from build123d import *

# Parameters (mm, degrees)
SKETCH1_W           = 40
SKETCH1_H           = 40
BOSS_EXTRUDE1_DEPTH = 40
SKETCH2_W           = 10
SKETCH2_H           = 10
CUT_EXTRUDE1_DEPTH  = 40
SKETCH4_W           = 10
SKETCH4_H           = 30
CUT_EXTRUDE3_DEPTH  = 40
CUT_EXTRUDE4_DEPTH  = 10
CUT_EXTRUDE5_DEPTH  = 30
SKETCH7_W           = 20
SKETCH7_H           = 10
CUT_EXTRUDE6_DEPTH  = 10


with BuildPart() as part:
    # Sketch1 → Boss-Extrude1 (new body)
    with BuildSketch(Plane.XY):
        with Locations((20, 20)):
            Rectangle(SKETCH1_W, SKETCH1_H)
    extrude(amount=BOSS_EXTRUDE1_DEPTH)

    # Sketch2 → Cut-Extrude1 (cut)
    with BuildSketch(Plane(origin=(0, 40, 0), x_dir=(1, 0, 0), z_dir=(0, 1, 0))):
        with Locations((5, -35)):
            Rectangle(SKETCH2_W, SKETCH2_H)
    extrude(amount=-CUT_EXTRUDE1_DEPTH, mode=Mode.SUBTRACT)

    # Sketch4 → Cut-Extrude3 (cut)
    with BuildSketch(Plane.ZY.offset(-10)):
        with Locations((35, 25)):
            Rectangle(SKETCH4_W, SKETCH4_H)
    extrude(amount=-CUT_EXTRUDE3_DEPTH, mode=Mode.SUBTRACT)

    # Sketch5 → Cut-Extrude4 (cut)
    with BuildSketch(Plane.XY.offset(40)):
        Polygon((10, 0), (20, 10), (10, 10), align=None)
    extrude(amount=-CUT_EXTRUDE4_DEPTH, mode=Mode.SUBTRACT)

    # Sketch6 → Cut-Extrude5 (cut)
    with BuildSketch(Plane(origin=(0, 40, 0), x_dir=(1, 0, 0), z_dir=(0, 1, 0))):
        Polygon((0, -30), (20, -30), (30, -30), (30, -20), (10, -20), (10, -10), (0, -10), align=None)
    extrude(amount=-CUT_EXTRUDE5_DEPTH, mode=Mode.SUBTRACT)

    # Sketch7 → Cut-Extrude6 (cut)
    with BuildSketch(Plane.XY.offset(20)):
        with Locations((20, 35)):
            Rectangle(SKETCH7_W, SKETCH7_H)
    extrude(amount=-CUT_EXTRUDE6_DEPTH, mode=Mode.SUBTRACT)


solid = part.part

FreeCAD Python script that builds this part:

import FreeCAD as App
import Part
import Sketcher
from FreeCAD import Vector
Q = App.Units.Quantity


def add_polygon(sketch, points):
    """Adds a closed chain of lines whose ends are joined by coincident constraints."""
    first, n = sketch.GeometryCount, len(points)
    for a, b in zip(points, points[1:] + points[:1]):
        sketch.addGeometry(Part.LineSegment(App.Vector(*a, 0), App.Vector(*b, 0)), False)
    for i in range(n):
        sketch.addConstraint(Sketcher.Constraint("Coincident", first + i, 2, first + (i + 1) % n, 1))

doc = App.newDocument("Part")
body = doc.addObject("PartDesign::Body", "Body")

sketch1 = body.newObject("Sketcher::SketchObject", "Sketch")
sketch1.AttachmentSupport = (doc.getObject("XY_Plane"), [""])
sketch1.MapMode = "FlatFace"
add_polygon(sketch1, [(0, 40), (0, 0), (40, 0), (40, 40)])
sketch1.addConstraint(Sketcher.Constraint("Vertical", 0))
sketch1.addConstraint(Sketcher.Constraint("Horizontal", 1))
sketch1.addConstraint(Sketcher.Constraint("Vertical", 2))
sketch1.addConstraint(Sketcher.Constraint("Horizontal", 3))
sketch1.addConstraint(Sketcher.Constraint("Coincident", 0, 2, -1, 1))
sketch1.addConstraint(Sketcher.Constraint("Equal", 3, 0))
sketch1.addConstraint(Sketcher.Constraint("DistanceX", 1, 1, 1, 2, Q("40 mm")))
pad1 = body.newObject("PartDesign::Pad", "Pad")
pad1.Profile = sketch1
pad1.Length = 40

sketch2 = body.newObject("Sketcher::SketchObject", "Sketch001")
sketch2.AttachmentSupport = (doc.getObject("XZ_Plane"), [""])
sketch2.MapMode = "FlatFace"
sketch2.AttachmentOffset = App.Placement(Vector(0, 0, -40), App.Rotation())
add_polygon(sketch2, [(0, 30), (0, 40), (10, 40), (10, 30)])
sketch2.addConstraint(Sketcher.Constraint("Vertical", 0))
sketch2.addConstraint(Sketcher.Constraint("Horizontal", 1))
sketch2.addConstraint(Sketcher.Constraint("Vertical", 2))
sketch2.addConstraint(Sketcher.Constraint("Horizontal", 3))
sketch2.addConstraint(Sketcher.Constraint("PointOnObject", 0, 2, -2))
sketch2.addConstraint(Sketcher.Constraint("Equal", 3, 0))
sketch2.addConstraint(Sketcher.Constraint("DistanceX", 1, 1, 1, 2, Q("10 mm")))
sketch2.addConstraint(Sketcher.Constraint("DistanceY", -1, 1, 0, 2, Q("40 mm")))
pocket1 = body.newObject("PartDesign::Pocket", "Pocket")
pocket1.Profile = sketch2
pocket1.Length = 40
pocket1.Reversed = True

sketch3 = body.newObject("Sketcher::SketchObject", "Sketch002")
sketch3.AttachmentSupport = (doc.getObject("YZ_Plane"), [""])
sketch3.MapMode = "FlatFace"
sketch3.AttachmentOffset = App.Placement(Vector(0, 0, 10), App.Rotation())
add_polygon(sketch3, [(40, 30), (10, 30), (10, 40), (40, 40)])
sketch3.addConstraint(Sketcher.Constraint("Horizontal", 0))
sketch3.addConstraint(Sketcher.Constraint("Vertical", 1))
sketch3.addConstraint(Sketcher.Constraint("Horizontal", 2))
sketch3.addConstraint(Sketcher.Constraint("Vertical", 3))
sketch3.addConstraint(Sketcher.Constraint("DistanceX", 0, 2, 0, 1, Q("30 mm")))
sketch3.addConstraint(Sketcher.Constraint("DistanceY", 1, 1, 1, 2, Q("10 mm")))
sketch3.addConstraint(Sketcher.Constraint("DistanceX", -1, 1, 0, 2, Q("10 mm")))
sketch3.addConstraint(Sketcher.Constraint("DistanceY", -1, 1, 0, 2, Q("30 mm")))
pocket2 = body.newObject("PartDesign::Pocket", "Pocket001")
pocket2.Profile = sketch3
pocket2.Length = 40
pocket2.Reversed = True

sketch4 = body.newObject("Sketcher::SketchObject", "Sketch003")
sketch4.AttachmentSupport = (doc.getObject("XY_Plane"), [""])
sketch4.MapMode = "FlatFace"
sketch4.AttachmentOffset = App.Placement(Vector(0, 0, 40), App.Rotation())
add_polygon(sketch4, [(10, 0), (20, 10), (10, 10)])
sketch4.addConstraint(Sketcher.Constraint("Horizontal", 1))
sketch4.addConstraint(Sketcher.Constraint("Vertical", 2))
sketch4.addConstraint(Sketcher.Constraint("PointOnObject", 2, 2, -1))
sketch4.addConstraint(Sketcher.Constraint("Equal", 1, 2))
sketch4.addConstraint(Sketcher.Constraint("DistanceX", 1, 2, 1, 1, Q("10 mm")))
sketch4.addConstraint(Sketcher.Constraint("DistanceX", -1, 1, 0, 2, Q("20 mm")))
pocket3 = body.newObject("PartDesign::Pocket", "Pocket002")
pocket3.Profile = sketch4
pocket3.Length = 10

sketch5 = body.newObject("Sketcher::SketchObject", "Sketch004")
sketch5.AttachmentSupport = (doc.getObject("XZ_Plane"), [""])
sketch5.MapMode = "FlatFace"
sketch5.AttachmentOffset = App.Placement(Vector(0, 0, -40), App.Rotation())
add_polygon(sketch5, [(0, 30), (30, 30), (30, 20), (10, 20), (10, 10), (0, 10)])
sketch5.addConstraint(Sketcher.Constraint("Horizontal", 0))
sketch5.addConstraint(Sketcher.Constraint("Vertical", 1))
sketch5.addConstraint(Sketcher.Constraint("Horizontal", 2))
sketch5.addConstraint(Sketcher.Constraint("Vertical", 3))
sketch5.addConstraint(Sketcher.Constraint("Horizontal", 4))
sketch5.addConstraint(Sketcher.Constraint("Vertical", 5))
sketch5.addConstraint(Sketcher.Constraint("PointOnObject", 4, 2, -2))
sketch5.addConstraint(Sketcher.Constraint("Equal", 4, 1))
sketch5.addConstraint(Sketcher.Constraint("Equal", 1, 3))
sketch5.addConstraint(Sketcher.Constraint("Equal", 2, 5))
sketch5.addConstraint(Sketcher.Constraint("DistanceX", 0, 1, 0, 2, Q("30 mm")))
sketch5.addConstraint(Sketcher.Constraint("DistanceY", -1, 1, 0, 2, Q("30 mm")))
pocket4 = body.newObject("PartDesign::Pocket", "Pocket003")
pocket4.Profile = sketch5
pocket4.Length = 30
pocket4.Reversed = True

sketch6 = body.newObject("Sketcher::SketchObject", "Sketch005")
sketch6.AttachmentSupport = (doc.getObject("XY_Plane"), [""])
sketch6.MapMode = "FlatFace"
sketch6.AttachmentOffset = App.Placement(Vector(0, 0, 20), App.Rotation())
add_polygon(sketch6, [(10, 40), (10, 30), (30, 30), (30, 40)])
sketch6.addConstraint(Sketcher.Constraint("Vertical", 0))
sketch6.addConstraint(Sketcher.Constraint("Horizontal", 1))
sketch6.addConstraint(Sketcher.Constraint("Vertical", 2))
sketch6.addConstraint(Sketcher.Constraint("Horizontal", 3))
sketch6.addConstraint(Sketcher.Constraint("DistanceX", 1, 1, 1, 2, Q("20 mm")))
sketch6.addConstraint(Sketcher.Constraint("DistanceY", 0, 2, 0, 1, Q("10 mm")))
sketch6.addConstraint(Sketcher.Constraint("DistanceX", -1, 1, 0, 2, Q("10 mm")))
sketch6.addConstraint(Sketcher.Constraint("DistanceY", -1, 1, 0, 2, Q("30 mm")))
pocket5 = body.newObject("PartDesign::Pocket", "Pocket004")
pocket5.Profile = sketch6
pocket5.Length = 10

doc.recompute()
